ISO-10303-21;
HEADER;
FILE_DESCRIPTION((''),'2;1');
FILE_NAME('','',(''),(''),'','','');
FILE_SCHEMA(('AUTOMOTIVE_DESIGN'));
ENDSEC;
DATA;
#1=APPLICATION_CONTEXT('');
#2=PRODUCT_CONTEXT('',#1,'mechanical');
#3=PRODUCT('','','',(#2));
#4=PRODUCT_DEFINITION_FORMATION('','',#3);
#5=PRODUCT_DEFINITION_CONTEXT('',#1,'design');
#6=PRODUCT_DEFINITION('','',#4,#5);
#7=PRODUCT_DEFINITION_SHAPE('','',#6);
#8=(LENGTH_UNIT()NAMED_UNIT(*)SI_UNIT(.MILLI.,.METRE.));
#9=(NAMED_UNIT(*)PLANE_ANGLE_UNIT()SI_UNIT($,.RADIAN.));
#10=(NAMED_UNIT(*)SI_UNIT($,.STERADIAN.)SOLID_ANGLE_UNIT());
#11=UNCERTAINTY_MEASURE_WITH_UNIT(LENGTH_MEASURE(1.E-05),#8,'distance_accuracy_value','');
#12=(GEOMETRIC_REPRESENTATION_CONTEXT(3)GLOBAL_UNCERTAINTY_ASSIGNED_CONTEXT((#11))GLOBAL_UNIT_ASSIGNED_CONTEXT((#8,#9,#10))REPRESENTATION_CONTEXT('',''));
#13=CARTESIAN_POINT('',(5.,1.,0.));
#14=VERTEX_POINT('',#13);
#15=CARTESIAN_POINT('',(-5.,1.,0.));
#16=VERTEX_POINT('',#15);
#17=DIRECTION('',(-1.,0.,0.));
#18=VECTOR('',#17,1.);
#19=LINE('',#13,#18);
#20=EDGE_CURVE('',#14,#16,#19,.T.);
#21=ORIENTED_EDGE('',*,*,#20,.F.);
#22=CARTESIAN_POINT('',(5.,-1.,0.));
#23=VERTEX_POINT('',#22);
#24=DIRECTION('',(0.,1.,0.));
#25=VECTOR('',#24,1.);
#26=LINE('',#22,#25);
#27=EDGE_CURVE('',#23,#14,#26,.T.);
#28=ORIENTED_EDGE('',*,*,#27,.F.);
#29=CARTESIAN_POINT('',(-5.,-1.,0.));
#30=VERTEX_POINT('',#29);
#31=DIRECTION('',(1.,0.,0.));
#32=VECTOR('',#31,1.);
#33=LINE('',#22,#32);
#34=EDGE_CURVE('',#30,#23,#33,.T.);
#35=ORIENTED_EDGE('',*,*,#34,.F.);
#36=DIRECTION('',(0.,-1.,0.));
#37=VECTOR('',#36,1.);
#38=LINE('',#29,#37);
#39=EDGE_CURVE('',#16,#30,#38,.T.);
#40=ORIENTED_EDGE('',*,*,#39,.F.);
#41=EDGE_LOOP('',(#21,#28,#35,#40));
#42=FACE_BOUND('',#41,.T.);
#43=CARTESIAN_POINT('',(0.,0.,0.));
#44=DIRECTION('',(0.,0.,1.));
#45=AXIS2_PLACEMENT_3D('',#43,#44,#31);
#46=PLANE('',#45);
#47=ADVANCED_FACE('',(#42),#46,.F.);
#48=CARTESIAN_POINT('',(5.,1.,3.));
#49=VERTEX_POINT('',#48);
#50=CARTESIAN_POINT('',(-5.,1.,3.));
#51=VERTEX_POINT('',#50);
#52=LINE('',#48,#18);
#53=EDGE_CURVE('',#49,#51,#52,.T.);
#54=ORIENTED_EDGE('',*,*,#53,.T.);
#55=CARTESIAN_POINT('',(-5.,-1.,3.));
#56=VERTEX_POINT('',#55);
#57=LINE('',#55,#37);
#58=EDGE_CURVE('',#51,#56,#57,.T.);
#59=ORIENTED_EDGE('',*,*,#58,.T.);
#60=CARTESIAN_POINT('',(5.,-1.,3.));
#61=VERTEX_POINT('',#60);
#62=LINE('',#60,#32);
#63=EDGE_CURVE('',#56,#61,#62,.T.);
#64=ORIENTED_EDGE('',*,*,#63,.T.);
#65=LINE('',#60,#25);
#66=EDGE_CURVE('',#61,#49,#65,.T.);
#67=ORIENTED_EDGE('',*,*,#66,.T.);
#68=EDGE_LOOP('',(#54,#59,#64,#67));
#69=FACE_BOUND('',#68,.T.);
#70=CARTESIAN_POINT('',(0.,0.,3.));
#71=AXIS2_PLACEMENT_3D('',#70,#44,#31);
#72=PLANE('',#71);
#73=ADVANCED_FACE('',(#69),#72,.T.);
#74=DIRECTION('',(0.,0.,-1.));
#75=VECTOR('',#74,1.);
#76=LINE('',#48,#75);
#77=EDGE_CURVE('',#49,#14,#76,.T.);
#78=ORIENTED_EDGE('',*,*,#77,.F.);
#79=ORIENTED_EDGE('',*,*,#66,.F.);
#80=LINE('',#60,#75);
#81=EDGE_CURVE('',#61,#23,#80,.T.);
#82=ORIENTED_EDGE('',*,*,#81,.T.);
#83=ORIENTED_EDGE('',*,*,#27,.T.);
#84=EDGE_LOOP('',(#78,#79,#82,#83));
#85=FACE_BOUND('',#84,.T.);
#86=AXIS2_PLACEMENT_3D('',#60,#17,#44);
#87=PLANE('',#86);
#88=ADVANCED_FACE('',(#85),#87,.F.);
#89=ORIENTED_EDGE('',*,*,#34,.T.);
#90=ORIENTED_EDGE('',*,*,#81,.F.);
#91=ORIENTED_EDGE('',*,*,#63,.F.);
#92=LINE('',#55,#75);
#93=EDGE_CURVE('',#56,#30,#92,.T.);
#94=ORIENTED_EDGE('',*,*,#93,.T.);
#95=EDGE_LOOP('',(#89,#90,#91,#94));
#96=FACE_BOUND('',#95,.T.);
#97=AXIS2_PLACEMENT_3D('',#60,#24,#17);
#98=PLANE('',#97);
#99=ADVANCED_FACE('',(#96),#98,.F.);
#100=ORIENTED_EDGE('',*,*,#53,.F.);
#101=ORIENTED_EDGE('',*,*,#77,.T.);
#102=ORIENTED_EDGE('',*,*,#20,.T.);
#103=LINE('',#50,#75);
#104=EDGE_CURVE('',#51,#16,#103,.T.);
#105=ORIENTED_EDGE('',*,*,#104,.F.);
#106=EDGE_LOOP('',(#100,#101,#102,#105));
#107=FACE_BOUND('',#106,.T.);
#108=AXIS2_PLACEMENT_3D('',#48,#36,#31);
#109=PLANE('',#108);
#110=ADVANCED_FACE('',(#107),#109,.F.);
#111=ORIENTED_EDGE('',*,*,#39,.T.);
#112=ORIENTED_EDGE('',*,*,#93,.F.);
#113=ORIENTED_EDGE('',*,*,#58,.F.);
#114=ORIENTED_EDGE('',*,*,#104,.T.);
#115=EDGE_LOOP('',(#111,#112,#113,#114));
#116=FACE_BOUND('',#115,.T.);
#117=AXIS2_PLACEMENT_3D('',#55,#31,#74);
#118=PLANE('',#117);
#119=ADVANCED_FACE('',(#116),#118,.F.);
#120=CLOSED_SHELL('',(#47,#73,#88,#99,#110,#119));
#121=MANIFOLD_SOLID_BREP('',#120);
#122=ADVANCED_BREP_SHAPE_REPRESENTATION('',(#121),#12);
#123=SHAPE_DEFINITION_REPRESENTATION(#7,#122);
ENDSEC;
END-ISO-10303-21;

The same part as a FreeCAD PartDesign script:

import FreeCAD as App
import Part
import Sketcher
from FreeCAD import Vector


def add_polygon(sketch, points):
    """Adds a closed chain of lines whose ends are joined by coincident constraints."""
    first, n = sketch.GeometryCount, len(points)
    for a, b in zip(points, points[1:] + points[:1]):
        sketch.addGeometry(Part.LineSegment(App.Vector(*a, 0), App.Vector(*b, 0)), False)
    for i in range(n):
        sketch.addConstraint(Sketcher.Constraint("Coincident", first + i, 2, first + (i + 1) % n, 1))

doc = App.newDocument("Part")
body = doc.addObject("PartDesign::Body", "Body")

sketch1 = body.newObject("Sketcher::SketchObject", "Sketch")
sketch1.AttachmentSupport = (doc.getObject("XY_Plane"), [""])
sketch1.MapMode = "FlatFace"
add_polygon(sketch1, [(-5, 1), (-5, -1), (5, -1), (5, 1)])
sketch1.addConstraint(Sketcher.Constraint("Vertical", 0))
sketch1.addConstraint(Sketcher.Constraint("Horizontal", 1))
sketch1.addConstraint(Sketcher.Constraint("Vertical", 2))
sketch1.addConstraint(Sketcher.Constraint("Horizontal", 3))
sketch1.addConstraint(Sketcher.Constraint("Symmetric", 0, 2, 2, 2, -1, 1))
sketch1.addConstraint(Sketcher.Constraint("DistanceX", 1, 1, 1, 2, 10.0))
sketch1.addConstraint(Sketcher.Constraint("DistanceY", 0, 2, 0, 1, 2.0))
pad1 = body.newObject("PartDesign::Pad", "Pad")
pad1.Profile = sketch1
pad1.Length = 3

doc.recompute()
